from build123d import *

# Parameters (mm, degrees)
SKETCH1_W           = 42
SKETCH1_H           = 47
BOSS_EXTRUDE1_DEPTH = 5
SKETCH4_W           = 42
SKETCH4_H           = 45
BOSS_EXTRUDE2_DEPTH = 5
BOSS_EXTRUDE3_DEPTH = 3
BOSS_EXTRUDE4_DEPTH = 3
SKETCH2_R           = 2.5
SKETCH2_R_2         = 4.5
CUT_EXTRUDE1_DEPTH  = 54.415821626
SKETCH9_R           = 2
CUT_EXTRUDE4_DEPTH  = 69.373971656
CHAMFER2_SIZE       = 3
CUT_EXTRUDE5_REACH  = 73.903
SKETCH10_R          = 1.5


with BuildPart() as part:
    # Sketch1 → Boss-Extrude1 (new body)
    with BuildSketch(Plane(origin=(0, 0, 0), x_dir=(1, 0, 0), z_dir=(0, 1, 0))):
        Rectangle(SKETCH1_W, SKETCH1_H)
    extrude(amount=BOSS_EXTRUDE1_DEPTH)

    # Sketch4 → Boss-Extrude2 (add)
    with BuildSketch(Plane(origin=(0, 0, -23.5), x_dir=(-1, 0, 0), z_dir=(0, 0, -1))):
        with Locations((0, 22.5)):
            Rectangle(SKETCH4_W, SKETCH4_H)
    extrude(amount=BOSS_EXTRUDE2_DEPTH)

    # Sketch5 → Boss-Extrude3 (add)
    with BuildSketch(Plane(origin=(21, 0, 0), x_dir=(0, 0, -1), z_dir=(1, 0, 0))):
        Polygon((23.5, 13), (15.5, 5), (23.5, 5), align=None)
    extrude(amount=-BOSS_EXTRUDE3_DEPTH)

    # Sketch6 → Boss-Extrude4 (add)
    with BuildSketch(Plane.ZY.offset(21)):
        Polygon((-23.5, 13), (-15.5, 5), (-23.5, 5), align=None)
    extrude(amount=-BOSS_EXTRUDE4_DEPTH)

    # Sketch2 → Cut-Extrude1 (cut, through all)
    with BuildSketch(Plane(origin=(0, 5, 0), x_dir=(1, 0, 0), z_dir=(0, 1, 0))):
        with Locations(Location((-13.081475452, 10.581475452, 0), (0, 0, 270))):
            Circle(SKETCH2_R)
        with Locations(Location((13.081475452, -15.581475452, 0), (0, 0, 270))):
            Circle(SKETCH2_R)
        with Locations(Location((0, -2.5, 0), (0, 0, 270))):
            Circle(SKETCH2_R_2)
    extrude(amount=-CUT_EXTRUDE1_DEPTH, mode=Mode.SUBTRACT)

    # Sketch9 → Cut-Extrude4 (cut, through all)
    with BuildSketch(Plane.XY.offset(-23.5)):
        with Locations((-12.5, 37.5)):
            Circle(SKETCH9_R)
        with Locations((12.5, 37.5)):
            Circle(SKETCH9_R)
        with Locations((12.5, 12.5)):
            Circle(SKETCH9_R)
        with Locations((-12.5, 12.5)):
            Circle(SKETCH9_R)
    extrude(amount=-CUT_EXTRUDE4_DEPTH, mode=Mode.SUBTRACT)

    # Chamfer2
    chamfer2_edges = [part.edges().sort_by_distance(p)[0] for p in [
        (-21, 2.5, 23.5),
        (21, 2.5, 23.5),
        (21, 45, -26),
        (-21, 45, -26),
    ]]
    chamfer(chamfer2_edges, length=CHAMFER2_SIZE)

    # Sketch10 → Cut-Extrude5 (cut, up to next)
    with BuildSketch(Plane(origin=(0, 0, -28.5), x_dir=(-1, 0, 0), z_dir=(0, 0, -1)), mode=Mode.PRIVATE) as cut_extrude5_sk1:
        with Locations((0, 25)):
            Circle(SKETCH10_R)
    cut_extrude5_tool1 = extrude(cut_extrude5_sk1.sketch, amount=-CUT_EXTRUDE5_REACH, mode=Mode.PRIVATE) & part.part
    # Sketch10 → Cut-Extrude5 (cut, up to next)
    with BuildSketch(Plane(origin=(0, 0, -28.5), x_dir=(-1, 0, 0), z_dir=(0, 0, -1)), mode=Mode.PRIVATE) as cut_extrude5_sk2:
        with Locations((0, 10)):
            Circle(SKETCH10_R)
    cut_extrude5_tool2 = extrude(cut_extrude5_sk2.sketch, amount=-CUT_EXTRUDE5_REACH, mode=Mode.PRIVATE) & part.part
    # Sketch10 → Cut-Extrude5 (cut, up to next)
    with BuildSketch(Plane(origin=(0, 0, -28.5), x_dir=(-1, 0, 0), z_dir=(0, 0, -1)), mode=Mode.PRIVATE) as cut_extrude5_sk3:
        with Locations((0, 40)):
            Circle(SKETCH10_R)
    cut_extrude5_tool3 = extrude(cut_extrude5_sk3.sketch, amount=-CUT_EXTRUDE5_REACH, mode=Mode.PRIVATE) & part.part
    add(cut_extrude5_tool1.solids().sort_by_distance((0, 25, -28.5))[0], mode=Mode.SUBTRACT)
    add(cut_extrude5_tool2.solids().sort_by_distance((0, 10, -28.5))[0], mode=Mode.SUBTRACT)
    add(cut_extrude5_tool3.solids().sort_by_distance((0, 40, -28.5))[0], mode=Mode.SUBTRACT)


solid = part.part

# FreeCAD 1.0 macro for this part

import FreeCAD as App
import Part
import Sketcher
Q = App.Units.Quantity


def edges_at(feature, points):
    """Names of the edges that pass closest to the given points."""
    edges = feature.Shape.Edges
    near = lambda p: min(range(len(edges)), key=lambda i: edges[i].distToShape(Part.Vertex(*p))[0])
    return sorted({f"Edge{near(p) + 1}" for p in points})

doc = App.newDocument("Part")
body = doc.addObject("PartDesign::Body", "Body")

# Sketch on XZ plane
sketch1 = body.newObject("Sketcher::SketchObject", "Sketch")
sketch1.AttachmentSupport = (doc.getObject("XZ_Plane"), [""])
sketch1.MapMode = "FlatFace"
sketch1.addGeometry([
    Part.LineSegment(App.Vector(-21, -24, 0), App.Vector(-21, 24, 0)),
    Part.LineSegment(App.Vector(-21, 24, 0), App.Vector(21, 24, 0)),
    Part.LineSegment(App.Vector(21, 24, 0), App.Vector(21, -24, 0)),
    Part.LineSegment(App.Vector(21, -24, 0), App.Vector(-21, -24, 0)),
], False)
sketch1.addConstraint([
    Sketcher.Constraint("Coincident", 0, 2, 1, 1),
    Sketcher.Constraint("Coincident", 1, 2, 2, 1),
    Sketcher.Constraint("Coincident", 2, 2, 3, 1),
    Sketcher.Constraint("Coincident", 3, 2, 0, 1),
    Sketcher.Constraint("Vertical", 0),
    Sketcher.Constraint("Horizontal", 1),
    Sketcher.Constraint("Vertical", 2),
    Sketcher.Constraint("Horizontal", 3),
    Sketcher.Constraint("Symmetric", 0, 2, 2, 2, -1, 1),
    Sketcher.Constraint("DistanceX", 1, 1, 1, 2, Q("42 mm")),
    Sketcher.Constraint("DistanceY", 0, 1, 0, 2, Q("47 mm")),
])
pad1 = body.newObject("PartDesign::Pad", "Pad")
pad1.Profile = sketch1
pad1.Length = 5
pad1.Reversed = True

# Sketch on XY plane
sketch2 = body.newObject("Sketcher::SketchObject", "Sketch001")
sketch2.AttachmentSupport = (doc.getObject("XY_Plane"), [""])
sketch2.MapMode = "FlatFace"
sketch2.AttachmentOffset = App.Placement(App.Vector(0, 0, -23.5), App.Rotation())
sketch2.addGeometry([
    Part.LineSegment(App.Vector(21, 45, 0), App.Vector(21, 0, 0)),
    Part.LineSegment(App.Vector(21, 0, 0), App.Vector(-21, 0, 0)),
    Part.LineSegment(App.Vector(-21, 0, 0), App.Vector(-21, 45, 0)),
    Part.LineSegment(App.Vector(-21, 45, 0), App.Vector(21, 45, 0)),
], False)
sketch2.addConstraint([
    Sketcher.Constraint("Coincident", 0, 2, 1, 1),
    Sketcher.Constraint("Coincident", 1, 2, 2, 1),
    Sketcher.Constraint("Coincident", 2, 2, 3, 1),
    Sketcher.Constraint("Coincident", 3, 2, 0, 1),
    Sketcher.Constraint("Vertical", 0),
    Sketcher.Constraint("Horizontal", 1),
    Sketcher.Constraint("Vertical", 2),
    Sketcher.Constraint("Horizontal", 3),
    Sketcher.Constraint("Symmetric", 0, 2, 1, 2, -1, 1),
    Sketcher.Constraint("DistanceX", 1, 2, 1, 1, Q("42 mm")),
    Sketcher.Constraint("DistanceY", 0, 2, 0, 1, Q("45 mm")),
])
pad2 = body.newObject("PartDesign::Pad", "Pad001")
pad2.Profile = sketch2
pad2.Length = 5
pad2.Reversed = True

# Sketch on YZ plane
sketch3 = body.newObject("Sketcher::SketchObject", "Sketch002")
sketch3.AttachmentSupport = (doc.getObject("YZ_Plane"), [""])
sketch3.MapMode = "FlatFace"
sketch3.AttachmentOffset = App.Placement(App.Vector(0, 0, 21), App.Rotation())
sketch3.addGeometry([
    Part.LineSegment(App.Vector(13, -24, 0), App.Vector(5, -16, 0)),
    Part.LineSegment(App.Vector(5, -16, 0), App.Vector(5, -24, 0)),
    Part.LineSegment(App.Vector(5, -24, 0), App.Vector(13, -24, 0)),
], False)
sketch3.addConstraint([
    Sketcher.Constraint("Coincident", 0, 2, 1, 1),
    Sketcher.Constraint("Coincident", 1, 2, 2, 1),
    Sketcher.Constraint("Coincident", 2, 2, 0, 1),
    Sketcher.Constraint("Vertical", 1),
    Sketcher.Constraint("Horizontal", 2),
    Sketcher.Constraint("Equal", 2, 1),
    Sketcher.Constraint("DistanceX", 2, 1, 2, 2, Q("8 mm")),
    Sketcher.Constraint("DistanceX", -1, 1, 0, 2, Q("5 mm")),
    Sketcher.Constraint("DistanceY", 0, 2, -1, 1, Q("15.5 mm")),
])
pad3 = body.newObject("PartDesign::Pad", "Pad002")
pad3.Profile = sketch3
pad3.Length = 3
pad3.Reversed = True

# Sketch on YZ plane
sketch4 = body.newObject("Sketcher::SketchObject", "Sketch003")
sketch4.AttachmentSupport = (doc.getObject("YZ_Plane"), [""])
sketch4.MapMode = "FlatFace"
sketch4.AttachmentOffset = App.Placement(App.Vector(0, 0, -21), App.Rotation())
sketch4.addGeometry([
    Part.LineSegment(App.Vector(5, -16, 0), App.Vector(13, -24, 0)),
    Part.LineSegment(App.Vector(13, -24, 0), App.Vector(5, -24, 0)),
    Part.LineSegment(App.Vector(5, -24, 0), App.Vector(5, -16, 0)),
], False)
sketch4.addConstraint([
    Sketcher.Constraint("Coincident", 0, 2, 1, 1),
    Sketcher.Constraint("Coincident", 1, 2, 2, 1),
    Sketcher.Constraint("Coincident", 2, 2, 0, 1),
    Sketcher.Constraint("Horizontal", 1),
    Sketcher.Constraint("Vertical", 2),
    Sketcher.Constraint("Equal", 1, 2),
    Sketcher.Constraint("DistanceX", 1, 2, 1, 1, Q("8 mm")),
    Sketcher.Constraint("DistanceX", -1, 1, 0, 2, Q("13 mm")),
    Sketcher.Constraint("DistanceY", 0, 2, -1, 1, Q("23.5 mm")),
])
pad4 = body.newObject("PartDesign::Pad", "Pad003")
pad4.Profile = sketch4
pad4.Length = 3

# Sketch on XZ plane
sketch5 = body.newObject("Sketcher::SketchObject", "Sketch004")
sketch5.AttachmentSupport = (doc.getObject("XZ_Plane"), [""])
sketch5.MapMode = "FlatFace"
sketch5.AttachmentOffset = App.Placement(App.Vector(0, 0, -5), App.Rotation())
sketch5.addGeometry([
    Part.Circle(App.Vector(-13.1, -10.6, 0), App.Vector(0, 0, 1), 2.5),
    Part.Circle(App.Vector(13.1, 15.6, 0), App.Vector(0, 0, 1), 2.5),
    Part.Circle(App.Vector(0, 2.5, 0), App.Vector(0, 0, 1), 4.5),
], False)
sketch5.addConstraint([
    Sketcher.Constraint("Equal", 0, 1),
    Sketcher.Constraint("PointOnObject", 2, 3, -2),
    Sketcher.Constraint("Diameter", 0, Q("5 mm")),
    Sketcher.Constraint("Diameter", 2, Q("9 mm")),
    Sketcher.Constraint("DistanceY", -1, 1, 2, 3, Q("2.5 mm")),
    Sketcher.Constraint("DistanceX", 0, 3, 1, 3, Q("26.162951 mm")),
    Sketcher.Constraint("DistanceY", 0, 3, 1, 3, Q("26.162951 mm")),
    Sketcher.Constraint("DistanceX", 0, 3, -1, 1, Q("13.081475 mm")),
    Sketcher.Constraint("DistanceY", 0, 3, -1, 1, Q("10.581475 mm")),
])
pocket1 = body.newObject("PartDesign::Pocket", "Pocket")
pocket1.Profile = sketch5
pocket1.Type = "ThroughAll"
pocket1.Reversed = True

# Sketch on XY plane
sketch6 = body.newObject("Sketcher::SketchObject", "Sketch005")
sketch6.AttachmentSupport = (doc.getObject("XY_Plane"), [""])
sketch6.MapMode = "FlatFace"
sketch6.AttachmentOffset = App.Placement(App.Vector(0, 0, -23.5), App.Rotation())
sketch6.addGeometry([
    Part.Circle(App.Vector(-12.5, 37.5, 0), App.Vector(0, 0, 1), 2),
    Part.Circle(App.Vector(12.5, 37.5, 0), App.Vector(0, 0, 1), 2),
    Part.Circle(App.Vector(12.5, 12.5, 0), App.Vector(0, 0, 1), 2),
    Part.Circle(App.Vector(-12.5, 12.5, 0), App.Vector(0, 0, 1), 2),
], False)
sketch6.addConstraint([
    Sketcher.Constraint("Equal", 0, 1),
    Sketcher.Constraint("Equal", 1, 2),
    Sketcher.Constraint("Equal", 2, 3),
    Sketcher.Constraint("Symmetric", 0, 3, 1, 3, -2),
    Sketcher.Constraint("Symmetric", 2, 3, 3, 3, -2),
    Sketcher.Constraint("Vertical", 1, 3, 2, 3),
    Sketcher.Constraint("Diameter", 0, Q("4 mm")),
    Sketcher.Constraint("DistanceX", 0, 3, 1, 3, Q("25 mm")),
    Sketcher.Constraint("DistanceY", 2, 3, 1, 3, Q("25 mm")),
    Sketcher.Constraint("DistanceY", -1, 1, 0, 3, Q("37.5 mm")),
])
pocket2 = body.newObject("PartDesign::Pocket", "Pocket001")
pocket2.Profile = sketch6
pocket2.Type = "ThroughAll"
doc.recompute()

chamfer = body.newObject("PartDesign::Chamfer", "Chamfer")
chamfer.Base = (pocket2, edges_at(pocket2, [
    (-21, 2.5, 23.5),
    (21, 2.5, 23.5),
    (21, 45, -26),
    (-21, 45, -26),
]))
chamfer.Size = 3

# Sketch on XY plane
sketch7 = body.newObject("Sketcher::SketchObject", "Sketch006")
sketch7.AttachmentSupport = (doc.getObject("XY_Plane"), [""])
sketch7.MapMode = "FlatFace"
sketch7.AttachmentOffset = App.Placement(App.Vector(0, 0, -28.5), App.Rotation())
sketch7.addGeometry(Part.Circle(App.Vector(0, 25, 0), App.Vector(0, 0, 1), 1.5), False)
sketch7.addConstraint([
    Sketcher.Constraint("PointOnObject", 0, 3, -2),
    Sketcher.Constraint("Diameter", 0, Q("3 mm")),
    Sketcher.Constraint("DistanceY", -1, 1, 0, 3, Q("25 mm")),
])
pocket3 = body.newObject("PartDesign::Pocket", "Pocket002")
pocket3.Profile = sketch7
pocket3.Type = "UpToFirst"
pocket3.Reversed = True

# Sketch on XY plane
sketch8 = body.newObject("Sketcher::SketchObject", "Sketch007")
sketch8.AttachmentSupport = (doc.getObject("XY_Plane"), [""])
sketch8.MapMode = "FlatFace"
sketch8.AttachmentOffset = App.Placement(App.Vector(0, 0, -28.5), App.Rotation())
sketch8.addGeometry(Part.Circle(App.Vector(0, 10, 0), App.Vector(0, 0, 1), 1.5), False)
sketch8.addConstraint([
    Sketcher.Constraint("PointOnObject", 0, 3, -2),
    Sketcher.Constraint("Diameter", 0, Q("3 mm")),
    Sketcher.Constraint("DistanceY", -1, 1, 0, 3, Q("10 mm")),
])
pocket4 = body.newObject("PartDesign::Pocket", "Pocket003")
pocket4.Profile = sketch8
pocket4.Type = "UpToFirst"
pocket4.Reversed = True

# Sketch on XY plane
sketch9 = body.newObject("Sketcher::SketchObject", "Sketch008")
sketch9.AttachmentSupport = (doc.getObject("XY_Plane"), [""])
sketch9.MapMode = "FlatFace"
sketch9.AttachmentOffset = App.Placement(App.Vector(0, 0, -28.5), App.Rotation())
sketch9.addGeometry(Part.Circle(App.Vector(0, 40, 0), App.Vector(0, 0, 1), 1.5), False)
sketch9.addConstraint([
    Sketcher.Constraint("PointOnObject", 0, 3, -2),
    Sketcher.Constraint("Diameter", 0, Q("3 mm")),
    Sketcher.Constraint("DistanceY", -1, 1, 0, 3, Q("40 mm")),
])
pocket5 = body.newObject("PartDesign::Pocket", "Pocket004")
pocket5.Profile = sketch9
pocket5.Type = "UpToFirst"
pocket5.Reversed = True

doc.recompute()
